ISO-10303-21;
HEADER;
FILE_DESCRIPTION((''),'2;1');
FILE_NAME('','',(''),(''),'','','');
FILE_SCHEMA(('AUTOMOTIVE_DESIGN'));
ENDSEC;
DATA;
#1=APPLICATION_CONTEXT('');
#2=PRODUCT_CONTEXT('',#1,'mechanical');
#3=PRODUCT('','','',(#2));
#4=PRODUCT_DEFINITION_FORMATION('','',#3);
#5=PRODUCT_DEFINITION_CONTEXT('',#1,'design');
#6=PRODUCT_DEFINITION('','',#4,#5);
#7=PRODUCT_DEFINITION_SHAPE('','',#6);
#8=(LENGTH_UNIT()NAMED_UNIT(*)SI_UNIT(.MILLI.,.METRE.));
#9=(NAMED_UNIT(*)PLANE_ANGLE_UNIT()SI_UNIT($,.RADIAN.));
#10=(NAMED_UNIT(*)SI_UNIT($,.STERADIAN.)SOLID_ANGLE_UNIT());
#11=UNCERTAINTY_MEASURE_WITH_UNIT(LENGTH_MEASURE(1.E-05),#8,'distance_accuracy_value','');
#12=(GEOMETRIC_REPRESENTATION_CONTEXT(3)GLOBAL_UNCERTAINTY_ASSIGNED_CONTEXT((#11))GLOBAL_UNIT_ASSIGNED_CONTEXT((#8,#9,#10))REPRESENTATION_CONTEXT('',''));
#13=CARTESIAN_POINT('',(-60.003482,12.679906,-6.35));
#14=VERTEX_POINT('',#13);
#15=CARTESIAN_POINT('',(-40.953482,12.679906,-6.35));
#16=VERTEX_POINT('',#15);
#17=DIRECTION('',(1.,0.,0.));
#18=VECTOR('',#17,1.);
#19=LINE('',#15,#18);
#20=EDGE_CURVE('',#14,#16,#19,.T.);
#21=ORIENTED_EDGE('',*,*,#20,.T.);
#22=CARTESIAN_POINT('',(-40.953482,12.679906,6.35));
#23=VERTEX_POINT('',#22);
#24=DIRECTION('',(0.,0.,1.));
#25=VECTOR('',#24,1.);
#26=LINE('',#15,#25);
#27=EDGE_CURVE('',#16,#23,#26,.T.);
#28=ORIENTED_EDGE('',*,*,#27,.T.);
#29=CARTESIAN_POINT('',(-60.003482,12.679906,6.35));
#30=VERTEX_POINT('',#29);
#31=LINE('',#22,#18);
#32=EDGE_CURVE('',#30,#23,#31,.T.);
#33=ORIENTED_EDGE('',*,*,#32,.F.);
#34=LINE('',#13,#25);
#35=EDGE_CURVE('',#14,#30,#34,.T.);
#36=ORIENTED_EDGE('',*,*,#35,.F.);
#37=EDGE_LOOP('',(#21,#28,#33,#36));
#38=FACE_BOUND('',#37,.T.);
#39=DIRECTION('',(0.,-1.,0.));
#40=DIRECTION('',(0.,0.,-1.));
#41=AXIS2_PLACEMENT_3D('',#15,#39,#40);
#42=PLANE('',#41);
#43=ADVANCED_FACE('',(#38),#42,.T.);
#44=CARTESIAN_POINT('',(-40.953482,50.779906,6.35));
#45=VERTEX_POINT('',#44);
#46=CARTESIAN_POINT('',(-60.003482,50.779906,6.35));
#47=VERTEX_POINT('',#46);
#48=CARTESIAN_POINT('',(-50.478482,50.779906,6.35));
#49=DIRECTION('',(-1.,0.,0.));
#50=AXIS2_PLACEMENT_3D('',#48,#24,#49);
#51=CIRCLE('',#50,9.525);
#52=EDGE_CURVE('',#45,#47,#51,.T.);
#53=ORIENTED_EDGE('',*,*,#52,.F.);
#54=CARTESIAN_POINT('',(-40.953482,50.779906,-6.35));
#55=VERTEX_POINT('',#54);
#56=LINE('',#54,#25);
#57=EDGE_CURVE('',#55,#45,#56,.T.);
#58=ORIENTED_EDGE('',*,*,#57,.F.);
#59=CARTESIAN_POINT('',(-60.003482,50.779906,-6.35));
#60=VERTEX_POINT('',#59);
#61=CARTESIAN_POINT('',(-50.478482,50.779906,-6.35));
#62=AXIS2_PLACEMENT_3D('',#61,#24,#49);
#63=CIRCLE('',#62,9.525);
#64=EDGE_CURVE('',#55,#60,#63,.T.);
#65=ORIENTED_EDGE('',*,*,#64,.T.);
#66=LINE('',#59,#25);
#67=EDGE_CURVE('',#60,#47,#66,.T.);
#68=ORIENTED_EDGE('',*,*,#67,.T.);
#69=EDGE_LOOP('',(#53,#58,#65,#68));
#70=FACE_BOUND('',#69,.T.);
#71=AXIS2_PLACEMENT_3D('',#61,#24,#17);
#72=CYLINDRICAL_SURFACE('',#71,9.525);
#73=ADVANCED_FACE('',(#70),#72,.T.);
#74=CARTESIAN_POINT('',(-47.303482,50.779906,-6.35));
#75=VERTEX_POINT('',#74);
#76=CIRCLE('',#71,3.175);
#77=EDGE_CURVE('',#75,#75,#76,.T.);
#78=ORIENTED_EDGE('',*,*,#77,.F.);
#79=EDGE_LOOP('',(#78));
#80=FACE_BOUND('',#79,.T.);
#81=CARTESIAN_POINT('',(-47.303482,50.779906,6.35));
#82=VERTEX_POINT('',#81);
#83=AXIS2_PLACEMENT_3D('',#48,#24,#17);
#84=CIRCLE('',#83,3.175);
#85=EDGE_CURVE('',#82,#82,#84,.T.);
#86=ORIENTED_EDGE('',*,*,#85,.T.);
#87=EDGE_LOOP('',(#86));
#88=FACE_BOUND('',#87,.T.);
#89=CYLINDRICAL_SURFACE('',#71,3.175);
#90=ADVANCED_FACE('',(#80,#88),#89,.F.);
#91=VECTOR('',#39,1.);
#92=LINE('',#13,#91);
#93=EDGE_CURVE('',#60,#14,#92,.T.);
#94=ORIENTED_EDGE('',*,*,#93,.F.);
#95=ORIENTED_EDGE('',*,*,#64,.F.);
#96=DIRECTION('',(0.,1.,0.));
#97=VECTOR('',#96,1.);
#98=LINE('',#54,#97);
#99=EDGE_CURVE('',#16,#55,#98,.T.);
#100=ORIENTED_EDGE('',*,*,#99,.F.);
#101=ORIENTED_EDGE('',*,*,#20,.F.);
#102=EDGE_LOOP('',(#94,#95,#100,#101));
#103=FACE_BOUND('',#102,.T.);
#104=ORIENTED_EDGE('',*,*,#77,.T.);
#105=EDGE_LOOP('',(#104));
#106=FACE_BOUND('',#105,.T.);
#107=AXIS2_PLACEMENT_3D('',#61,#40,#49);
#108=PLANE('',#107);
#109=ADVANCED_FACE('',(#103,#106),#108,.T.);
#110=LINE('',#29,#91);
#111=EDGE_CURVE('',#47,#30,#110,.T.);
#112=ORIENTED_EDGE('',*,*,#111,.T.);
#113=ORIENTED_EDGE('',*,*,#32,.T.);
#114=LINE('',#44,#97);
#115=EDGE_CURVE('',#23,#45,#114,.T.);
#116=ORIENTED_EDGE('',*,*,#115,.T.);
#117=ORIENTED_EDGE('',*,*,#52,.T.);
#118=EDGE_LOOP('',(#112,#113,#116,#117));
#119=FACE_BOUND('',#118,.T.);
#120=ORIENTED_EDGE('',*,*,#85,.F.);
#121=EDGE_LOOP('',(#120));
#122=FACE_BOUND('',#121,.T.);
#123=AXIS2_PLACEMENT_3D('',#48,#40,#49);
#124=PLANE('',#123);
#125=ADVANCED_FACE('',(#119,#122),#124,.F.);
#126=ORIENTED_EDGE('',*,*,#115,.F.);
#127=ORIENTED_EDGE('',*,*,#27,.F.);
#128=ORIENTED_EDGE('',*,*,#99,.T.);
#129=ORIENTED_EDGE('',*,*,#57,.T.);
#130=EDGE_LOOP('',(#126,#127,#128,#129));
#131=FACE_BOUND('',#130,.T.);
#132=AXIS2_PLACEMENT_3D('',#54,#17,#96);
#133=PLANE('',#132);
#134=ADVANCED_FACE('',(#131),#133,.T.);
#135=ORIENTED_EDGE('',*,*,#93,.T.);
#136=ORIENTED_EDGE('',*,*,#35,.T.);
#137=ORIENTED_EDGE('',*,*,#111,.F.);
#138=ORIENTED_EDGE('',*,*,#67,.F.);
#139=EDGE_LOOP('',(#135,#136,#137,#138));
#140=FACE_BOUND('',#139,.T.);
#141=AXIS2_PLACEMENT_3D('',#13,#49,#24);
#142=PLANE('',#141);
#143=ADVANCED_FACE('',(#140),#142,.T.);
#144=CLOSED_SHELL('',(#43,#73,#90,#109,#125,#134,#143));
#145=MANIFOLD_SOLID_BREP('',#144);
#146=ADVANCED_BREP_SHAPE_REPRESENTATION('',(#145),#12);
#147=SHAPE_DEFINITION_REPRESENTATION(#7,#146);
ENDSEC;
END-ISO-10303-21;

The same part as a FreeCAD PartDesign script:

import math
import FreeCAD as App
import Part
import Sketcher
from FreeCAD import Vector
Q = App.Units.Quantity

doc = App.newDocument("Part")
params = doc.addObject("Spreadsheet::Sheet", "Params")
for row, (alias, value) in enumerate([
    ("sketch1_diameter", "0.25 in"),
    ("sketch1_height", "1.5 in"),
    ("sketch1_radius", "0.375 in"),
    ("pad1_length", "0.25 in"),
    ("pad1_length2", "0.25 in"),
], start=1):
    params.set(f"A{row}", alias)
    params.set(f"B{row}", "=" + value)
    params.setAlias(f"B{row}", alias)

body = doc.addObject("PartDesign::Body", "Body")

# Sketch on XY plane
sketch1 = body.newObject("Sketcher::SketchObject", "Sketch")
sketch1.AttachmentSupport = (doc.getObject("XY_Plane"), [""])
sketch1.MapMode = "FlatFace"
sketch1.addGeometry([
    Part.LineSegment(Vector(-60, 50.8, 0), Vector(-60, 12.7, 0)),  # 0
    Part.LineSegment(Vector(-60, 12.7, 0), Vector(-41, 12.7, 0)),  # 1
    Part.LineSegment(Vector(-41, 12.7, 0), Vector(-41, 50.8, 0)),  # 2
    Part.ArcOfCircle(Part.Circle(Vector(-50.5, 50.8, 0), Vector(0, 0, 1), 9.5), math.radians(0), math.radians(180)),  # 3
    Part.Circle(Vector(-50.5, 50.8, 0), Vector(0, 0, 1), 3.2),  # 4
], False)
sketch1.addConstraint([
    Sketcher.Constraint("Coincident", 0, 2, 1, 1),
    Sketcher.Constraint("Coincident", 1, 2, 2, 1),
    Sketcher.Constraint("Tangent", 2, 2, 3, 1),
    Sketcher.Constraint("Tangent", 3, 2, 0, 1),
    Sketcher.Constraint("Vertical", 0),
    Sketcher.Constraint("Horizontal", 1),
    Sketcher.Constraint("Vertical", 2),
    Sketcher.Constraint("Coincident", 4, 3, 3, 3),
    Sketcher.Constraint("Diameter", 4, Q("0.25 in")),
    Sketcher.Constraint("DistanceY", 0, 2, 0, 1, Q("1.5 in")),
    Sketcher.Constraint("Radius", 3, Q("0.375 in")),
    Sketcher.Constraint("DistanceX", 3, 3, -1, 1, 50.478482),
    Sketcher.Constraint("DistanceY", -1, 1, 3, 3, 50.779906),
])
sketch1.setExpression("Constraints[8]", "Params.sketch1_diameter")
sketch1.setExpression("Constraints[9]", "Params.sketch1_height")
sketch1.setExpression("Constraints[10]", "Params.sketch1_radius")
pad1 = body.newObject("PartDesign::Pad", "Pad")
pad1.Profile = sketch1
pad1.Type = "TwoLengths"
pad1.setExpression("Length", "Params.pad1_length")
pad1.setExpression("Length2", "Params.pad1_length2")

doc.recompute()
